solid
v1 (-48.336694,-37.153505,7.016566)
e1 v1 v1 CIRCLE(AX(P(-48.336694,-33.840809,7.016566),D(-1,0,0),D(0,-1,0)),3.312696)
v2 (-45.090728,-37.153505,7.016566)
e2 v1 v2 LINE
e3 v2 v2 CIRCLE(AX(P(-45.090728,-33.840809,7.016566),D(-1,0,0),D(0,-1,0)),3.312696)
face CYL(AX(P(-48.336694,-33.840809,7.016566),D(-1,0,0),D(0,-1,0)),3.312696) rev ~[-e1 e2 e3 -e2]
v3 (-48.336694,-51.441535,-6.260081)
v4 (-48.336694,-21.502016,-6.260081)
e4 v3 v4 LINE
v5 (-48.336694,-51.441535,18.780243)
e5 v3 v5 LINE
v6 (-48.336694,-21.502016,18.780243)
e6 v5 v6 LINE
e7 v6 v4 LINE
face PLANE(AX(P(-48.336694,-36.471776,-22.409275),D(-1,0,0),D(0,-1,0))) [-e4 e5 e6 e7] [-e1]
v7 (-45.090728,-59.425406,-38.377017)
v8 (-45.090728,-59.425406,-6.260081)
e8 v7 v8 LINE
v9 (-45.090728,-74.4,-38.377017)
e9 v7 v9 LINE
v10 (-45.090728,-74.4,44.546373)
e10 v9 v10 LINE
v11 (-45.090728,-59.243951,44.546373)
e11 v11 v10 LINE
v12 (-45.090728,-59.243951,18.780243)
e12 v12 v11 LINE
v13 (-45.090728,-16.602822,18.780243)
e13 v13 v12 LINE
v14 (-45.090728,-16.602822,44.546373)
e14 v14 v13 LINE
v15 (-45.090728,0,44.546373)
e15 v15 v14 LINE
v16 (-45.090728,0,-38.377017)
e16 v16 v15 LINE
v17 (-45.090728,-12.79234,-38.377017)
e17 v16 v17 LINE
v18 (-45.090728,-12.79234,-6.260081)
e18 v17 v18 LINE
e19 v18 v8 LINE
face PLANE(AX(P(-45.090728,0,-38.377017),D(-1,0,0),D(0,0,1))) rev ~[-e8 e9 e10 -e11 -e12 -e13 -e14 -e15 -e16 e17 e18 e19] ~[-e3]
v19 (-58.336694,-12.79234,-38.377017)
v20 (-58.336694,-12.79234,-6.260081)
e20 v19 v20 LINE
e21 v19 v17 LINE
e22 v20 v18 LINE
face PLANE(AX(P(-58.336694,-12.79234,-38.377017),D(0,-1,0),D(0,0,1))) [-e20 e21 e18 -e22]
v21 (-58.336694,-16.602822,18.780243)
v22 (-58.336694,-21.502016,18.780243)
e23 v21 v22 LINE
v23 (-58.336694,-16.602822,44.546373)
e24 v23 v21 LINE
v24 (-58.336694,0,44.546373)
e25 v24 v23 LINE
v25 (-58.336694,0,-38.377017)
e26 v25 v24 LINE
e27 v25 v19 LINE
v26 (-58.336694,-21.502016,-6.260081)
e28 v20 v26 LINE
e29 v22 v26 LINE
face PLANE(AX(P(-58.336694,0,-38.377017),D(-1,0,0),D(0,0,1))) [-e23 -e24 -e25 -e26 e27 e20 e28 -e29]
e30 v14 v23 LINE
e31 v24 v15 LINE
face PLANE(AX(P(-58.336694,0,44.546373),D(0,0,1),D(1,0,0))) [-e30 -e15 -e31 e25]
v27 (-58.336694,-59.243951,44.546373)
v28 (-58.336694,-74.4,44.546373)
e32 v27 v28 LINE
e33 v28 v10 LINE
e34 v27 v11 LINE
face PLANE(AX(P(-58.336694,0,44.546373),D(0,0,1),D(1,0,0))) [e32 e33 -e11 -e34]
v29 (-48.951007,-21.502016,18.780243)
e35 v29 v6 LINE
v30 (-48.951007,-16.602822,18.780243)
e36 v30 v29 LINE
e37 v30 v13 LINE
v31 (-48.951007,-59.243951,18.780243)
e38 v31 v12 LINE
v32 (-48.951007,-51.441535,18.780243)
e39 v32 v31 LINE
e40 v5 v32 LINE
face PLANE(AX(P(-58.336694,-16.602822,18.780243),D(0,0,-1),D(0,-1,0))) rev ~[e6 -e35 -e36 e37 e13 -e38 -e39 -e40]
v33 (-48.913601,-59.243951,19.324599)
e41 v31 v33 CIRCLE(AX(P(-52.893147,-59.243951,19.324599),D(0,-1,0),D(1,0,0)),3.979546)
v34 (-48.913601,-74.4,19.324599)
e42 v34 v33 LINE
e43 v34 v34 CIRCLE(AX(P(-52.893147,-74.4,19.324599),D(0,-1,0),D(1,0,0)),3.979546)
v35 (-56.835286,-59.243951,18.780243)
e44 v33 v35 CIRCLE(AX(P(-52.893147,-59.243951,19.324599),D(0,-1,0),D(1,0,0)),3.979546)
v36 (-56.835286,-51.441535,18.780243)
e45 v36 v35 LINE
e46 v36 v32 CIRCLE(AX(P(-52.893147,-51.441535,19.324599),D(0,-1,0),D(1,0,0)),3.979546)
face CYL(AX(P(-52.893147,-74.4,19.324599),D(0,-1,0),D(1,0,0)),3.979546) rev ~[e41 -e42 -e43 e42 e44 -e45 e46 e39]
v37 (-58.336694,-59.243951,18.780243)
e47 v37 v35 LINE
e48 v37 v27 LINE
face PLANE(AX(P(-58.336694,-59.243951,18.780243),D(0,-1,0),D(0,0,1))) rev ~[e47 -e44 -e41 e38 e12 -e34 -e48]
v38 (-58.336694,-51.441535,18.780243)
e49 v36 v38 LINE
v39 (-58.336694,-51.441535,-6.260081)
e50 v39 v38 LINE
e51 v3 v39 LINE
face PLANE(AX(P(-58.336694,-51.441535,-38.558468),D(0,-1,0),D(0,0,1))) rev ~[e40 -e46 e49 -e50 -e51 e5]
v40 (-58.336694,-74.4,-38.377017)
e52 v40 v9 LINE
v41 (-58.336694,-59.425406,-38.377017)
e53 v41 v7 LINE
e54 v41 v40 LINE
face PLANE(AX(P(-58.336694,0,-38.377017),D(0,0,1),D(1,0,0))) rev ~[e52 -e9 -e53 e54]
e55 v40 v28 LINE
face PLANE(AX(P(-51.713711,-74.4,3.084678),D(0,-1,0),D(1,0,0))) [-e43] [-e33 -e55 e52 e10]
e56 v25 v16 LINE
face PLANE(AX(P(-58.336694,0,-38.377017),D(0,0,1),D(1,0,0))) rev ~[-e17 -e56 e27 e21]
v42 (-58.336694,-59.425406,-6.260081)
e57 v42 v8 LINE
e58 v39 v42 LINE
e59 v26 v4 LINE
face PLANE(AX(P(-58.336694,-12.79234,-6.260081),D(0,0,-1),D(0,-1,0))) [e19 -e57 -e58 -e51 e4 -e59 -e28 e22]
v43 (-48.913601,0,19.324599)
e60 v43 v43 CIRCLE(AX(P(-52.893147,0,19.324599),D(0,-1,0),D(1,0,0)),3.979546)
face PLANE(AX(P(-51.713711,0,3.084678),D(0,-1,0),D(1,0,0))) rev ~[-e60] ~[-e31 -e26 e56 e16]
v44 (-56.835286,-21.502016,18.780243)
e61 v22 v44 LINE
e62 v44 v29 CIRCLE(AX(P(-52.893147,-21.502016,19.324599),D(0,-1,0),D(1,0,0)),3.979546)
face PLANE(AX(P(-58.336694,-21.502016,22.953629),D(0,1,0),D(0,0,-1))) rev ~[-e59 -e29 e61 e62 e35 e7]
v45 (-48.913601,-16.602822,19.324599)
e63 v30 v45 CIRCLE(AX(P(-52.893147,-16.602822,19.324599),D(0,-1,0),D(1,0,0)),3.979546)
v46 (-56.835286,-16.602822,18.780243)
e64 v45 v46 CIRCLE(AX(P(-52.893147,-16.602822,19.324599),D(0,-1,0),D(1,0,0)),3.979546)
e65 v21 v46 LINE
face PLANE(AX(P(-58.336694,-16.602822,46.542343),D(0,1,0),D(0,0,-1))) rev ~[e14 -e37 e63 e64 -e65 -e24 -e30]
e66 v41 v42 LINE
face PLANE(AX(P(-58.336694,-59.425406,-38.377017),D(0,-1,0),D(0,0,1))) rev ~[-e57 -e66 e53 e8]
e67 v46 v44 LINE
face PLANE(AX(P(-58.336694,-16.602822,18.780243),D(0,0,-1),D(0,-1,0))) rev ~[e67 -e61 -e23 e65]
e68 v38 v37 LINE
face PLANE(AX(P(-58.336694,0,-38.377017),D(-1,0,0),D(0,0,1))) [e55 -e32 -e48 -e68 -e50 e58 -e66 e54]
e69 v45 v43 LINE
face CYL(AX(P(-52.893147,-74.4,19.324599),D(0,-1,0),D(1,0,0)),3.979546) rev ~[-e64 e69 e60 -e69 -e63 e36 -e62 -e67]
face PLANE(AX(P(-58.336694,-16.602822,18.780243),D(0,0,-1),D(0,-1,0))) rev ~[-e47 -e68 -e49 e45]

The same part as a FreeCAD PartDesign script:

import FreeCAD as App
import Part
import Sketcher


def add_polygon(sketch, points):
    """Adds a closed chain of lines whose ends are joined by coincident constraints."""
    first, n = sketch.GeometryCount, len(points)
    for a, b in zip(points, points[1:] + points[:1]):
        sketch.addGeometry(Part.LineSegment(App.Vector(*a, 0), App.Vector(*b, 0)), False)
    for i in range(n):
        sketch.addConstraint(Sketcher.Constraint("Coincident", first + i, 2, first + (i + 1) % n, 1))

doc = App.newDocument("Part")
body = doc.addObject("PartDesign::Body", "Body")

sketch1 = body.newObject("Sketcher::SketchObject", "Sketch")
sketch1.AttachmentSupport = (doc.getObject("XZ_Plane"), [""])
sketch1.MapMode = "FlatFace"
add_polygon(sketch1, [(-58, 45), (-58, -38), (-45, -38), (-45, 45)])
sketch1.addConstraint(Sketcher.Constraint("Vertical", 0))
sketch1.addConstraint(Sketcher.Constraint("Horizontal", 1))
sketch1.addConstraint(Sketcher.Constraint("Vertical", 2))
sketch1.addConstraint(Sketcher.Constraint("Horizontal", 3))
sketch1.addConstraint(Sketcher.Constraint("DistanceY", 0, 2, 0, 1, 82.92339))
sketch1.addConstraint(Sketcher.Constraint("DistanceX", 1, 1, 1, 2, 13.245966))
sketch1.addConstraint(Sketcher.Constraint("DistanceX", 0, 2, -1, 1, 58.336694))
sketch1.addConstraint(Sketcher.Constraint("DistanceY", 0, 2, -1, 1, 38.377017))
pad1 = body.newObject("PartDesign::Pad", "Pad")
pad1.Profile = sketch1
pad1.Length = 74.4

sketch2 = body.newObject("Sketcher::SketchObject", "Sketch001")
sketch2.AttachmentSupport = (doc.getObject("YZ_Plane"), [""])
sketch2.MapMode = "FlatFace"
sketch2.AttachmentOffset = App.Placement(App.Vector(0, 0, -58.336694), App.Rotation())
add_polygon(sketch2, [(-17, 19), (-59, 19), (-59, 47), (-17, 47)])
add_polygon(sketch2, [(-13, -6), (-13, -38), (-59, -38), (-59, -6)])
sketch2.addConstraint(Sketcher.Constraint("Horizontal", 0))
sketch2.addConstraint(Sketcher.Constraint("Vertical", 1))
sketch2.addConstraint(Sketcher.Constraint("Horizontal", 2))
sketch2.addConstraint(Sketcher.Constraint("Vertical", 3))
sketch2.addConstraint(Sketcher.Constraint("Vertical", 4))
sketch2.addConstraint(Sketcher.Constraint("Horizontal", 5))
sketch2.addConstraint(Sketcher.Constraint("Vertical", 6))
sketch2.addConstraint(Sketcher.Constraint("Horizontal", 7))
sketch2.addConstraint(Sketcher.Constraint("DistanceY", 1, 1, 1, 2, 27.7621))
sketch2.addConstraint(Sketcher.Constraint("DistanceX", 0, 2, 0, 1, 42.641129))
sketch2.addConstraint(Sketcher.Constraint("DistanceX", 5, 2, 5, 1, 46.633067))
sketch2.addConstraint(Sketcher.Constraint("DistanceY", 4, 2, 4, 1, 32.116936))
sketch2.addConstraint(Sketcher.Constraint("DistanceX", 0, 2, -1, 1, 59.243951))
sketch2.addConstraint(Sketcher.Constraint("DistanceX", 4, 2, -1, 1, 12.79234))
sketch2.addConstraint(Sketcher.Constraint("DistanceY", 6, 2, -1, 1, 6.260081))
sketch2.addConstraint(Sketcher.Constraint("DistanceY", 4, 2, 3, 2, 57.157259))
pocket1 = body.newObject("PartDesign::Pocket", "Pocket")
pocket1.Profile = sketch2
pocket1.Length = 25
pocket1.Reversed = True

sketch3 = body.newObject("Sketcher::SketchObject", "Sketch002")
sketch3.AttachmentSupport = (doc.getObject("YZ_Plane"), [""])
sketch3.MapMode = "FlatFace"
sketch3.AttachmentOffset = App.Placement(App.Vector(0, 0, -58.336694), App.Rotation())
add_polygon(sketch3, [(-22, -39), (-51, -39), (-51, 23), (-22, 23)])
sketch3.addConstraint(Sketcher.Constraint("Horizontal", 0))
sketch3.addConstraint(Sketcher.Constraint("Vertical", 1))
sketch3.addConstraint(Sketcher.Constraint("Horizontal", 2))
sketch3.addConstraint(Sketcher.Constraint("Vertical", 3))
sketch3.addConstraint(Sketcher.Constraint("DistanceX", 0, 2, 0, 1, 29.939519))
sketch3.addConstraint(Sketcher.Constraint("DistanceY", 1, 1, 1, 2, 61.512098))
sketch3.addConstraint(Sketcher.Constraint("DistanceY", 0, 2, -1, 1, 38.558468))
sketch3.addConstraint(Sketcher.Constraint("DistanceX", 0, 2, -1, 1, 51.441535))
pocket2 = body.newObject("PartDesign::Pocket", "Pocket001")
pocket2.Profile = sketch3
pocket2.Length = 10
pocket2.Reversed = True

sketch4 = body.newObject("Sketcher::SketchObject", "Sketch003")
sketch4.AttachmentSupport = (doc.getObject("XZ_Plane"), [""])
sketch4.MapMode = "FlatFace"
sketch4.AttachmentOffset = App.Placement(App.Vector(0, 0, 74.4), App.Rotation())
sketch4.addGeometry(Part.Circle(App.Vector(-52.9, 19.3, 0), App.Vector(0, 0, 1), 4), False)
sketch4.addConstraint(Sketcher.Constraint("Diameter", 0, 7.959092))
sketch4.addConstraint(Sketcher.Constraint("DistanceY", -1, 1, 0, 3, 19.324599))
sketch4.addConstraint(Sketcher.Constraint("DistanceX", 0, 3, -1, 1, 52.893147))
pocket3 = body.newObject("PartDesign::Pocket", "Pocket002")
pocket3.Profile = sketch4
pocket3.Length = 90.9

sketch5 = body.newObject("Sketcher::SketchObject", "Sketch004")
sketch5.AttachmentSupport = (doc.getObject("YZ_Plane"), [""])
sketch5.MapMode = "FlatFace"
sketch5.AttachmentOffset = App.Placement(App.Vector(0, 0, -48.336694), App.Rotation())
sketch5.addGeometry(Part.Circle(App.Vector(-33.8, 7, 0), App.Vector(0, 0, 1), 3.3), False)
sketch5.addConstraint(Sketcher.Constraint("Diameter", 0, 6.625393))
sketch5.addConstraint(Sketcher.Constraint("DistanceX", 0, 3, -1, 1, 33.840809))
sketch5.addConstraint(Sketcher.Constraint("DistanceY", -1, 1, 0, 3, 7.016566))
pocket4 = body.newObject("PartDesign::Pocket", "Pocket003")
pocket4.Profile = sketch5
pocket4.Length = 59.4
pocket4.Reversed = True

doc.recompute()
